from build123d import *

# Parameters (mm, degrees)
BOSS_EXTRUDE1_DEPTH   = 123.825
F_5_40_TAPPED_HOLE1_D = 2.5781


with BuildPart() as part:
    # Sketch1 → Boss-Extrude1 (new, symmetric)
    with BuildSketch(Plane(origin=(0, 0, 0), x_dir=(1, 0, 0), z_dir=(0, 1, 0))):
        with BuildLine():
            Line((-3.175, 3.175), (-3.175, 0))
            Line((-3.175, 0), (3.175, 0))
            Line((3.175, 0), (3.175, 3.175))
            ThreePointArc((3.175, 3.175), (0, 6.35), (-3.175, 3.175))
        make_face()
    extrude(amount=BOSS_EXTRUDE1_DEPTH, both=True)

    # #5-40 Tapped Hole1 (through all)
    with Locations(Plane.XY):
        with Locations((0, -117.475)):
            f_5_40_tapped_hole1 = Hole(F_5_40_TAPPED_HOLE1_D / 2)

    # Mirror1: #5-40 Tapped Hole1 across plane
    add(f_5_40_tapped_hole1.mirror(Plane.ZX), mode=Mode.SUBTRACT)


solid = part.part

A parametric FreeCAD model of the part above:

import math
import FreeCAD as App
import Part
import Sketcher

V = App.Vector
Q = App.Units.Quantity

doc = App.newDocument("Part")
params = doc.addObject("Spreadsheet::Sheet", "Params")
for row, (alias, value) in enumerate([
    ("sketch1_radius", "0.125 in"),
    ("sketch1_height", "0.125 in"),
    ("pad1_length", "9.75 in"),
    ("hole_diameter", "0.1015 in"),
], start=1):
    params.set(f"A{row}", alias)
    params.set(f"B{row}", "=" + value)
    params.setAlias(f"B{row}", alias)

body = doc.addObject("PartDesign::Body", "Body")

sketch1 = body.newObject("Sketcher::SketchObject", "Sketch")
sketch1.AttachmentSupport = (doc.getObject("XZ_Plane"), [""])
sketch1.MapMode = "FlatFace"
sketch1.addGeometry(Part.LineSegment(V(-3.2, -3.2, 0), V(-3.2, 0, 0)), False)
sketch1.addGeometry(Part.LineSegment(V(-3.2, 0, 0), V(3.2, 0, 0)), False)
sketch1.addGeometry(Part.LineSegment(V(3.2, 0, 0), V(3.2, -3.2, 0)), False)
sketch1.addGeometry(Part.ArcOfCircle(Part.Circle(V(0, -3.2, 0), V(0, 0, 1), 3.2), math.radians(180), math.radians(360)), False)
sketch1.addConstraint(Sketcher.Constraint("Coincident", 0, 2, 1, 1))
sketch1.addConstraint(Sketcher.Constraint("Coincident", 1, 2, 2, 1))
sketch1.addConstraint(Sketcher.Constraint("Tangent", 2, 2, 3, 2))
sketch1.addConstraint(Sketcher.Constraint("Tangent", 3, 1, 0, 1))
sketch1.addConstraint(Sketcher.Constraint("Vertical", 0))
sketch1.addConstraint(Sketcher.Constraint("Horizontal", 1))
sketch1.addConstraint(Sketcher.Constraint("Vertical", 2))
sketch1.addConstraint(Sketcher.Constraint("Symmetric", 0, 2, 1, 2, -1, 1))
sketch1.addConstraint(Sketcher.Constraint("Radius", 3, Q("0.125 in")))
sketch1.addConstraint(Sketcher.Constraint("DistanceY", 0, 1, 0, 2, Q("0.125 in")))
sketch1.setExpression("Constraints[8]", "Params.sketch1_radius")
sketch1.setExpression("Constraints[9]", "Params.sketch1_height")
pad1 = body.newObject("PartDesign::Pad", "Pad")
pad1.Profile = sketch1
pad1.setExpression("Length", "Params.pad1_length")
pad1.Midplane = True

sketch2 = body.newObject("Sketcher::SketchObject", "Sketch001")
sketch2.AttachmentSupport = (doc.getObject("XY_Plane"), [""])
sketch2.MapMode = "FlatFace"
sketch2.addGeometry(Part.Circle(V(0, -117.5, 0), V(0, 0, 1), 1.3), False)
sketch2.addConstraint(Sketcher.Constraint("PointOnObject", 0, 3, -2))
sketch2.addConstraint(Sketcher.Constraint("Diameter", 0, Q("0.1015 in")))
sketch2.addConstraint(Sketcher.Constraint("DistanceY", 0, 3, -1, 1, Q("4.625 in")))
doc.recompute()
hole = body.newObject("PartDesign::Hole", "Hole")
hole.Profile = sketch2
hole.ThreadType = "None"
hole.setExpression("Diameter", "Params.hole_diameter")
hole.DepthType = "ThroughAll"
doc.recompute()

mirrored = body.newObject("PartDesign::Mirrored", "Mirrored")
mirrored.Originals = [hole]
mirrored.MirrorPlane = (doc.getObject("XZ_Plane"), [""])
body.Tip = mirrored

doc.recompute()
